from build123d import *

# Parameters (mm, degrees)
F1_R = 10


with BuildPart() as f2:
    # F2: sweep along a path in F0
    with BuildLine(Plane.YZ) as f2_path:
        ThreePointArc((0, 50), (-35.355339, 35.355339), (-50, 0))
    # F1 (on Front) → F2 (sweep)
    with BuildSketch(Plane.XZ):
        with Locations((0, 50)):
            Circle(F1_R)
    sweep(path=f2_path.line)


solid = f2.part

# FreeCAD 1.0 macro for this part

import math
import FreeCAD as App
import Part
import Sketcher
Q = App.Units.Quantity

doc = App.newDocument("Part")
params = doc.addObject("Spreadsheet::Sheet", "Params")
for row, (alias, value) in enumerate([
    ("sketch1_diameter", "20 mm"),
    ("sketch2_radius", "50 mm"),
], start=1):
    params.set(f"A{row}", alias)
    params.set(f"B{row}", "=" + value)
    params.setAlias(f"B{row}", alias)

body = doc.addObject("PartDesign::Body", "Body")

sketch1 = body.newObject("Sketcher::SketchObject", "Sketch")
sketch1.AttachmentSupport = (doc.getObject("XZ_Plane"), [""])
sketch1.MapMode = "FlatFace"
sketch1.addGeometry(Part.Circle(App.Vector(0, 50, 0), App.Vector(0, 0, 1), 10), False)
sketch1.addConstraint([
    Sketcher.Constraint("PointOnObject", 0, 3, -2),
    Sketcher.Constraint("Diameter", 0, Q("20 mm")),
    Sketcher.Constraint("DistanceY", -1, 1, 0, 3, Q("50 mm")),
])
sketch1.setExpression("Constraints[1]", "Params.sketch1_diameter")

sketch2 = body.newObject("Sketcher::SketchObject", "Sketch001")
sketch2.AttachmentSupport = (doc.getObject("YZ_Plane"), [""])
sketch2.MapMode = "FlatFace"
sketch2.addGeometry(Part.ArcOfCircle(Part.Circle(App.Vector(0, 0, 0), App.Vector(0, 0, 1), 50), math.radians(90), math.radians(180)), False)
sketch2.addConstraint([
    Sketcher.Constraint("Coincident", 0, 3, -1, 1),
    Sketcher.Constraint("PointOnObject", 0, 1, -2),
    Sketcher.Constraint("PointOnObject", 0, 2, -1),
    Sketcher.Constraint("Radius", 0, Q("50 mm")),
])
sketch2.setExpression("Constraints[3]", "Params.sketch2_radius")
doc.recompute()

additivepipe = body.newObject("PartDesign::AdditivePipe", "AdditivePipe")
additivepipe.Profile = sketch1
additivepipe.Spine = (sketch2, ["Edge1"])

doc.recompute()
